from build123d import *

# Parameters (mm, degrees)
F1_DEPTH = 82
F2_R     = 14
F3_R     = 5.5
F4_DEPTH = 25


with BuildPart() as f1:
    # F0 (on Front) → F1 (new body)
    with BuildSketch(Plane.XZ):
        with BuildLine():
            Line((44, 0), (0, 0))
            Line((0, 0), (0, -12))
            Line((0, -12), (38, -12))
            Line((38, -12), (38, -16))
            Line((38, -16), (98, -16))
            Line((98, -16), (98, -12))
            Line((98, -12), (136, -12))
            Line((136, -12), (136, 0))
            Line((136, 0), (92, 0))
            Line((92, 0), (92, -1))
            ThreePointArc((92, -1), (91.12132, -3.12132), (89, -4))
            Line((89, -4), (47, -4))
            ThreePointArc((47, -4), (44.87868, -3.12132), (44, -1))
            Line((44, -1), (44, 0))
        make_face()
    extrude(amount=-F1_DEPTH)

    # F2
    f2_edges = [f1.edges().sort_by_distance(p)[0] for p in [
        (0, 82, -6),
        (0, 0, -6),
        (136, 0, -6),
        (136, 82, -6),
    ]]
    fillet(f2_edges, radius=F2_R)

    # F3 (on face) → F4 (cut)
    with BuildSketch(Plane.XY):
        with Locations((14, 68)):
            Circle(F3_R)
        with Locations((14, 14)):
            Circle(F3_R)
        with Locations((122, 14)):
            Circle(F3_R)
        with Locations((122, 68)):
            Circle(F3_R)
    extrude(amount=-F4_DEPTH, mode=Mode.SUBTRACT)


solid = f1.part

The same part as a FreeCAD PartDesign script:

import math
import FreeCAD as App
import Part
import Sketcher

V = App.Vector


def edges_at(feature, points):
    """Names of the edges that pass closest to the given points."""
    edges = feature.Shape.Edges
    near = lambda p: min(range(len(edges)), key=lambda i: edges[i].distToShape(Part.Vertex(*p))[0])
    return sorted({f"Edge{near(p) + 1}" for p in points})

doc = App.newDocument("Part")
body = doc.addObject("PartDesign::Body", "Body")

# Sketch on XZ plane
sketch1 = doc.addObject("Sketcher::SketchObject", "Sketch")
body.addObject(sketch1)
sketch1.AttachmentSupport = (doc.XZ_Plane, [""])
sketch1.MapMode = "FlatFace"
sketch1.addGeometry(Part.LineSegment(V(44, 0, 0), V(0, 0, 0)), False)
sketch1.addGeometry(Part.LineSegment(V(0, 0, 0), V(0, -12, 0)), False)
sketch1.addGeometry(Part.LineSegment(V(0, -12, 0), V(38, -12, 0)), False)
sketch1.addGeometry(Part.LineSegment(V(38, -12, 0), V(38, -16, 0)), False)
sketch1.addGeometry(Part.LineSegment(V(38, -16, 0), V(98, -16, 0)), False)
sketch1.addGeometry(Part.LineSegment(V(98, -16, 0), V(98, -12, 0)), False)
sketch1.addGeometry(Part.LineSegment(V(98, -12, 0), V(136, -12, 0)), False)
sketch1.addGeometry(Part.LineSegment(V(136, -12, 0), V(136, 0, 0)), False)
sketch1.addGeometry(Part.LineSegment(V(136, 0, 0), V(92, 0, 0)), False)
sketch1.addGeometry(Part.LineSegment(V(92, 0, 0), V(92, -1, 0)), False)
sketch1.addGeometry(Part.ArcOfCircle(Part.Circle(V(89, -1, 0), V(0, 0, 1), 3), math.radians(-90), math.radians(0)), False)
sketch1.addGeometry(Part.LineSegment(V(89, -4, 0), V(47, -4, 0)), False)
sketch1.addGeometry(Part.ArcOfCircle(Part.Circle(V(47, -1, 0), V(0, 0, 1), 3), math.radians(-180), math.radians(-90)), False)
sketch1.addGeometry(Part.LineSegment(V(44, -1, 0), V(44, 0, 0)), False)
sketch1.addConstraint(Sketcher.Constraint("Coincident", 0, 2, 1, 1))
sketch1.addConstraint(Sketcher.Constraint("Coincident", 1, 2, 2, 1))
sketch1.addConstraint(Sketcher.Constraint("Coincident", 2, 2, 3, 1))
sketch1.addConstraint(Sketcher.Constraint("Coincident", 3, 2, 4, 1))
sketch1.addConstraint(Sketcher.Constraint("Coincident", 4, 2, 5, 1))
sketch1.addConstraint(Sketcher.Constraint("Coincident", 5, 2, 6, 1))
sketch1.addConstraint(Sketcher.Constraint("Coincident", 6, 2, 7, 1))
sketch1.addConstraint(Sketcher.Constraint("Coincident", 7, 2, 8, 1))
sketch1.addConstraint(Sketcher.Constraint("Coincident", 8, 2, 9, 1))
sketch1.addConstraint(Sketcher.Constraint("Tangent", 9, 2, 10, 2))
sketch1.addConstraint(Sketcher.Constraint("Tangent", 10, 1, 11, 1))
sketch1.addConstraint(Sketcher.Constraint("Tangent", 11, 2, 12, 2))
sketch1.addConstraint(Sketcher.Constraint("Tangent", 12, 1, 13, 1))
sketch1.addConstraint(Sketcher.Constraint("Coincident", 13, 2, 0, 1))
sketch1.addConstraint(Sketcher.Constraint("Horizontal", 0))
sketch1.addConstraint(Sketcher.Constraint("Vertical", 1))
sketch1.addConstraint(Sketcher.Constraint("Horizontal", 2))
sketch1.addConstraint(Sketcher.Constraint("Vertical", 3))
sketch1.addConstraint(Sketcher.Constraint("Horizontal", 4))
sketch1.addConstraint(Sketcher.Constraint("Vertical", 5))
sketch1.addConstraint(Sketcher.Constraint("Horizontal", 6))
sketch1.addConstraint(Sketcher.Constraint("Vertical", 7))
sketch1.addConstraint(Sketcher.Constraint("Horizontal", 8))
sketch1.addConstraint(Sketcher.Constraint("Vertical", 9))
sketch1.addConstraint(Sketcher.Constraint("Horizontal", 11))
sketch1.addConstraint(Sketcher.Constraint("Vertical", 13))
sketch1.addConstraint(Sketcher.Constraint("Coincident", 0, 2, -1, 1))
sketch1.addConstraint(Sketcher.Constraint("Equal", 10, 12))
sketch1.addConstraint(Sketcher.Constraint("PointOnObject", 7, 2, -1))
sketch1.addConstraint(Sketcher.Constraint("Horizontal", 2, 2, 5, 2))
sketch1.addConstraint(Sketcher.Constraint("Equal", 2, 6))
sketch1.addConstraint(Sketcher.Constraint("Equal", 0, 8))
sketch1.addConstraint(Sketcher.Constraint("Radius", 10, 3.000001))
sketch1.addConstraint(Sketcher.Constraint("DistanceX", 0, 2, 0, 1, 44.0))
sketch1.addConstraint(Sketcher.Constraint("DistanceX", 2, 1, 2, 2, 38.0))
sketch1.addConstraint(Sketcher.Constraint("DistanceX", 4, 1, 4, 2, 60.0))
sketch1.addConstraint(Sketcher.Constraint("DistanceY", 1, 2, 1, 1, 12.0))
sketch1.addConstraint(Sketcher.Constraint("DistanceY", 3, 2, 3, 1, 4.0))
sketch1.addConstraint(Sketcher.Constraint("DistanceY", 9, 2, 9, 1, 1.0))
pad1 = doc.addObject("PartDesign::Pad", "Pad")
body.addObject(pad1)
pad1.Profile = sketch1
pad1.Length = 82
pad1.Reversed = True
doc.recompute()

fillet = doc.addObject("PartDesign::Fillet", "Fillet")
body.addObject(fillet)
fillet.Base = (pad1, edges_at(pad1, [
    (0, 82, -6),
    (0, 0, -6),
    (136, 0, -6),
    (136, 82, -6),
]))
fillet.Radius = 14

# Sketch on XY plane
sketch2 = doc.addObject("Sketcher::SketchObject", "Sketch001")
body.addObject(sketch2)
sketch2.AttachmentSupport = (doc.XY_Plane, [""])
sketch2.MapMode = "FlatFace"
sketch2.addGeometry(Part.Circle(V(14, 68, 0), V(0, 0, 1), 6), False)
sketch2.addGeometry(Part.Circle(V(14, 14, 0), V(0, 0, 1), 6), False)
sketch2.addGeometry(Part.Circle(V(122, 14, 0), V(0, 0, 1), 6), False)
sketch2.addGeometry(Part.Circle(V(122, 68, 0), V(0, 0, 1), 6), False)
sketch2.addConstraint(Sketcher.Constraint("Equal", 0, 1))
sketch2.addConstraint(Sketcher.Constraint("Equal", 1, 2))
sketch2.addConstraint(Sketcher.Constraint("Equal", 2, 3))
sketch2.addConstraint(Sketcher.Constraint("Horizontal", 1, 3, 2, 3))
sketch2.addConstraint(Sketcher.Constraint("Horizontal", 0, 3, 3, 3))
sketch2.addConstraint(Sketcher.Constraint("Vertical", 0, 3, 1, 3))
sketch2.addConstraint(Sketcher.Constraint("Vertical", 2, 3, 3, 3))
sketch2.addConstraint(Sketcher.Constraint("Diameter", 0, 11.0))
sketch2.addConstraint(Sketcher.Constraint("DistanceX", -1, 1, 0, 3, 14.0))
sketch2.addConstraint(Sketcher.Constraint("DistanceY", -1, 1, 0, 3, 68.0))
sketch2.addConstraint(Sketcher.Constraint("DistanceY", -1, 1, 1, 3, 14.0))
sketch2.addConstraint(Sketcher.Constraint("DistanceX", -1, 1, 2, 3, 122.0))
pocket1 = doc.addObject("PartDesign::Pocket", "Pocket")
body.addObject(pocket1)
pocket1.Profile = sketch2
pocket1.Length = 25

doc.recompute()
